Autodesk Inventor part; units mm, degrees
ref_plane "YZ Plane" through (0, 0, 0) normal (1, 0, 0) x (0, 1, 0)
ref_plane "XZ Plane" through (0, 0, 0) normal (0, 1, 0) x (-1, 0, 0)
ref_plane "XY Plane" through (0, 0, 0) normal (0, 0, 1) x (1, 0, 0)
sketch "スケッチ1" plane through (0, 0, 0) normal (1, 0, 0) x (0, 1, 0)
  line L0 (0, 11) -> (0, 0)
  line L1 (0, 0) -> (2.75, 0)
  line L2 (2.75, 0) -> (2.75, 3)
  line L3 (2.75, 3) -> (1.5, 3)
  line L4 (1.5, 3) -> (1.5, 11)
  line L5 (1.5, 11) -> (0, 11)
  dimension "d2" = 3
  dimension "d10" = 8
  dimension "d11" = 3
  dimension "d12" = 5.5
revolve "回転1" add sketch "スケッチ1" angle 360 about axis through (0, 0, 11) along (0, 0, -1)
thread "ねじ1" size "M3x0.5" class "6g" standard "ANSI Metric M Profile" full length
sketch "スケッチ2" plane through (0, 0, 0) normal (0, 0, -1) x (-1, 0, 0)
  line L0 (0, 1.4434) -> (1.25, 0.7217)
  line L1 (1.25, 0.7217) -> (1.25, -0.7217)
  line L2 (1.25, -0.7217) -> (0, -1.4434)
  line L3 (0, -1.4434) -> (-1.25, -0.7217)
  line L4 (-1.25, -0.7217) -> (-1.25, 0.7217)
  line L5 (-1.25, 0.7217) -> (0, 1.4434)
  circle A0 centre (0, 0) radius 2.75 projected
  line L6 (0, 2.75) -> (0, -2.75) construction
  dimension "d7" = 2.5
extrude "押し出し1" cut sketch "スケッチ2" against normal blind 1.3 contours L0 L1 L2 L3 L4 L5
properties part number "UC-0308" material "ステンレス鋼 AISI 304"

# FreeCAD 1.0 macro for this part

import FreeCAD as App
import Part
import Sketcher
from FreeCAD import Vector
Q = App.Units.Quantity


def add_polygon(sketch, points):
    """Adds a closed chain of lines whose ends are joined by coincident constraints."""
    first, n = sketch.GeometryCount, len(points)
    for a, b in zip(points, points[1:] + points[:1]):
        sketch.addGeometry(Part.LineSegment(App.Vector(*a, 0), App.Vector(*b, 0)), False)
    for i in range(n):
        sketch.addConstraint(Sketcher.Constraint("Coincident", first + i, 2, first + (i + 1) % n, 1))

doc = App.newDocument("Part")
body = doc.addObject("PartDesign::Body", "Body")

sketch1 = body.newObject("Sketcher::SketchObject", "Sketch")
sketch1.AttachmentSupport = (doc.getObject("YZ_Plane"), [""])
sketch1.MapMode = "FlatFace"
add_polygon(sketch1, [(1.5, 11), (0, 11), (0, 0), (2.8, 0), (2.8, 3), (1.5, 3)])
sketch1.addConstraint([
    Sketcher.Constraint("Horizontal", 0),
    Sketcher.Constraint("Vertical", 1),
    Sketcher.Constraint("Horizontal", 2),
    Sketcher.Constraint("Vertical", 3),
    Sketcher.Constraint("Horizontal", 4),
    Sketcher.Constraint("Vertical", 5),
    Sketcher.Constraint("Coincident", 1, 2, -1, 1),
    Sketcher.Constraint("DistanceY", 3, 1, 3, 2, 3.0),
    Sketcher.Constraint("DistanceY", 5, 1, 5, 2, 8.0),
    Sketcher.Constraint("DistanceX", 0, 2, 0, 1, 1.5),
    Sketcher.Constraint("DistanceX", 2, 1, 2, 2, 2.75),
])
revolution = body.newObject("PartDesign::Revolution", "Revolution")
revolution.Profile = sketch1
revolution.ReferenceAxis = (sketch1, ["V_Axis"])
revolution.Angle = 360

sketch2 = body.newObject("Sketcher::SketchObject", "Sketch001")
sketch2.AttachmentSupport = (doc.getObject("XY_Plane"), [""])
sketch2.MapMode = "FlatFace"
add_polygon(sketch2, [(-1.2, 0.7), (0, 1.4), (1.2, 0.7), (1.2, -0.7), (0, -1.4), (-1.2, -0.7)])
sketch2.addConstraint([
    Sketcher.Constraint("Vertical", 2),
    Sketcher.Constraint("Vertical", 5),
    Sketcher.Constraint("Symmetric", 0, 2, 3, 2, -1, 1),
    Sketcher.Constraint("Symmetric", 1, 2, 4, 2, -1, 1),
    Sketcher.Constraint("PointOnObject", 0, 2, -2),
    Sketcher.Constraint("Parallel", 0, 3),
    Sketcher.Constraint("Horizontal", 2, 2, 4, 2),
    Sketcher.Constraint("DistanceX", 4, 2, 2, 2, 2.5),
    Sketcher.Constraint("Angle", 0, Q("30.0004 deg")),
    Sketcher.Constraint("DistanceY", 2, 2, 2, 1, 1.4434),
])
pocket1 = body.newObject("PartDesign::Pocket", "Pocket")
pocket1.Profile = sketch2
pocket1.Length = 1.3
pocket1.Reversed = True

doc.recompute()
